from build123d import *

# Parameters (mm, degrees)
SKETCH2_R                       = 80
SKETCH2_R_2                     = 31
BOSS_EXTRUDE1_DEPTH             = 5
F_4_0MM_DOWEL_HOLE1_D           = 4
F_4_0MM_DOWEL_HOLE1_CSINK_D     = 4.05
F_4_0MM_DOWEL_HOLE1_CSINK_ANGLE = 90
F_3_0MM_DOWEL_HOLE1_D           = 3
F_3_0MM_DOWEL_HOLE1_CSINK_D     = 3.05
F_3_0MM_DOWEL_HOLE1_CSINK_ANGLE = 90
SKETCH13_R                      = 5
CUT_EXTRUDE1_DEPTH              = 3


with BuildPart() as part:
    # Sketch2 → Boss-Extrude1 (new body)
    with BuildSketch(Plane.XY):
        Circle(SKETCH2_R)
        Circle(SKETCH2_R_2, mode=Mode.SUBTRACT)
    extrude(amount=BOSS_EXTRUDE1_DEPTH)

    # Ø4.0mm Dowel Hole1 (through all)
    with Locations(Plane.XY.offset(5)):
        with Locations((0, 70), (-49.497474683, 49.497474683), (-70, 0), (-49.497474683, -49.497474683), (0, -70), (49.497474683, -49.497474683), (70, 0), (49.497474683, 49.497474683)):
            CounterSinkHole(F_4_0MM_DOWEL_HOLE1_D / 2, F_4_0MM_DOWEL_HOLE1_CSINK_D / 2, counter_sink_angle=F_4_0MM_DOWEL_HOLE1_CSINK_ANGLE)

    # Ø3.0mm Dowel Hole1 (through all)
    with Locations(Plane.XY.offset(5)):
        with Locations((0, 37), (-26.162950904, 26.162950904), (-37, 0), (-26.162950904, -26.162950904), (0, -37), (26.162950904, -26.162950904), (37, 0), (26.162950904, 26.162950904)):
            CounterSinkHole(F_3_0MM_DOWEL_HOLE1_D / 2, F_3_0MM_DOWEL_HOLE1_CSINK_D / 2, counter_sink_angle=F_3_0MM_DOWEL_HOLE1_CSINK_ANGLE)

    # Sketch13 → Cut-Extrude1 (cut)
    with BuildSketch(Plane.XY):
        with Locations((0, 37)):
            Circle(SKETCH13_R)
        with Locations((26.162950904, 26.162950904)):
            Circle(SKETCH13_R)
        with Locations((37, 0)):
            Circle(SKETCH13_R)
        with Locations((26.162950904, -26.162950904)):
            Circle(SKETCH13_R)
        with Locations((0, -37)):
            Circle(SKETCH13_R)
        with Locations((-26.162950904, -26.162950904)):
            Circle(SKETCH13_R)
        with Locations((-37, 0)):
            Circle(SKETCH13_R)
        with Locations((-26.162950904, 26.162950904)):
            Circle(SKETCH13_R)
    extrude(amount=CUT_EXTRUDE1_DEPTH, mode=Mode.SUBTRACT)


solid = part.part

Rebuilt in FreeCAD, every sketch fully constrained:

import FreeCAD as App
import Part
import Sketcher

V = App.Vector
Q = App.Units.Quantity

doc = App.newDocument("Part")
body = doc.addObject("PartDesign::Body", "Body")

# Sketch on XY plane
sketch1 = body.newObject("Sketcher::SketchObject", "Sketch")
sketch1.AttachmentSupport = (doc.getObject("XY_Plane"), [""])
sketch1.MapMode = "FlatFace"
sketch1.addGeometry(Part.Circle(V(0, 0, 0), V(0, 0, 1), 80), False)
sketch1.addGeometry(Part.Circle(V(0, 0, 0), V(0, 0, 1), 31), False)
sketch1.addConstraint(Sketcher.Constraint("Coincident", 0, 3, -1, 1))
sketch1.addConstraint(Sketcher.Constraint("Coincident", 1, 3, -1, 1))
sketch1.addConstraint(Sketcher.Constraint("Diameter", 0, Q("160 mm")))
sketch1.addConstraint(Sketcher.Constraint("Diameter", 1, Q("62 mm")))
pad1 = body.newObject("PartDesign::Pad", "Pad")
pad1.Profile = sketch1
pad1.Length = 5

# Sketch on XY plane
sketch2 = body.newObject("Sketcher::SketchObject", "Sketch001")
sketch2.AttachmentSupport = (doc.getObject("XY_Plane"), [""])
sketch2.MapMode = "FlatFace"
sketch2.AttachmentOffset = App.Placement(V(0, 0, 5), App.Rotation())
sketch2.addGeometry(Part.Circle(V(0, 70, 0), V(0, 0, 1), 2), False)
sketch2.addGeometry(Part.Circle(V(-49.5, 49.5, 0), V(0, 0, 1), 2), False)
sketch2.addGeometry(Part.Circle(V(-70, 0, 0), V(0, 0, 1), 2), False)
sketch2.addGeometry(Part.Circle(V(-49.5, -49.5, 0), V(0, 0, 1), 2), False)
sketch2.addGeometry(Part.Circle(V(0, -70, 0), V(0, 0, 1), 2), False)
sketch2.addGeometry(Part.Circle(V(49.5, -49.5, 0), V(0, 0, 1), 2), False)
sketch2.addGeometry(Part.Circle(V(70, 0, 0), V(0, 0, 1), 2), False)
sketch2.addGeometry(Part.Circle(V(49.5, 49.5, 0), V(0, 0, 1), 2), False)
sketch2.addConstraint(Sketcher.Constraint("Equal", 0, 1))
sketch2.addConstraint(Sketcher.Constraint("Equal", 1, 2))
sketch2.addConstraint(Sketcher.Constraint("Equal", 2, 3))
sketch2.addConstraint(Sketcher.Constraint("Equal", 3, 4))
sketch2.addConstraint(Sketcher.Constraint("Equal", 4, 5))
sketch2.addConstraint(Sketcher.Constraint("Equal", 5, 6))
sketch2.addConstraint(Sketcher.Constraint("Equal", 6, 7))
sketch2.addConstraint(Sketcher.Constraint("Symmetric", 0, 3, 4, 3, -1, 1))
sketch2.addConstraint(Sketcher.Constraint("Symmetric", 1, 3, 5, 3, -1, 1))
sketch2.addConstraint(Sketcher.Constraint("Symmetric", 2, 3, 6, 3, -1, 1))
sketch2.addConstraint(Sketcher.Constraint("Symmetric", 3, 3, 7, 3, -1, 1))
sketch2.addConstraint(Sketcher.Constraint("Symmetric", 3, 3, 5, 3, -2))
sketch2.addConstraint(Sketcher.Constraint("PointOnObject", 0, 3, -2))
sketch2.addConstraint(Sketcher.Constraint("PointOnObject", 2, 3, -1))
sketch2.addConstraint(Sketcher.Constraint("Diameter", 0, Q("4 mm")))
sketch2.addConstraint(Sketcher.Constraint("DistanceY", -1, 1, 0, 3, Q("70 mm")))
sketch2.addConstraint(Sketcher.Constraint("DistanceX", 2, 3, -1, 1, Q("70 mm")))
sketch2.addConstraint(Sketcher.Constraint("DistanceY", 3, 3, 1, 3, Q("98.994949 mm")))
sketch2.addConstraint(Sketcher.Constraint("DistanceX", 3, 3, 5, 3, Q("98.994949 mm")))
doc.recompute()
hole = body.newObject("PartDesign::Hole", "Hole")
hole.Profile = sketch2
hole.ThreadType = "None"
hole.Diameter = 4
hole.DepthType = "ThroughAll"
hole.HoleCutType = "Countersink"
hole.HoleCutDiameter = 4.05
hole.HoleCutCountersinkAngle = 90

# Sketch on XY plane
sketch3 = body.newObject("Sketcher::SketchObject", "Sketch002")
sketch3.AttachmentSupport = (doc.getObject("XY_Plane"), [""])
sketch3.MapMode = "FlatFace"
sketch3.AttachmentOffset = App.Placement(V(0, 0, 5), App.Rotation())
sketch3.addGeometry(Part.Circle(V(0, 37, 0), V(0, 0, 1), 1.5), False)
sketch3.addGeometry(Part.Circle(V(-26.2, 26.2, 0), V(0, 0, 1), 1.5), False)
sketch3.addGeometry(Part.Circle(V(-37, 0, 0), V(0, 0, 1), 1.5), False)
sketch3.addGeometry(Part.Circle(V(-26.2, -26.2, 0), V(0, 0, 1), 1.5), False)
sketch3.addGeometry(Part.Circle(V(0, -37, 0), V(0, 0, 1), 1.5), False)
sketch3.addGeometry(Part.Circle(V(26.2, -26.2, 0), V(0, 0, 1), 1.5), False)
sketch3.addGeometry(Part.Circle(V(37, 0, 0), V(0, 0, 1), 1.5), False)
sketch3.addGeometry(Part.Circle(V(26.2, 26.2, 0), V(0, 0, 1), 1.5), False)
sketch3.addConstraint(Sketcher.Constraint("Equal", 0, 1))
sketch3.addConstraint(Sketcher.Constraint("Equal", 1, 2))
sketch3.addConstraint(Sketcher.Constraint("Equal", 2, 3))
sketch3.addConstraint(Sketcher.Constraint("Equal", 3, 4))
sketch3.addConstraint(Sketcher.Constraint("Equal", 4, 5))
sketch3.addConstraint(Sketcher.Constraint("Equal", 5, 6))
sketch3.addConstraint(Sketcher.Constraint("Equal", 6, 7))
sketch3.addConstraint(Sketcher.Constraint("Symmetric", 0, 3, 4, 3, -1, 1))
sketch3.addConstraint(Sketcher.Constraint("Symmetric", 1, 3, 5, 3, -1, 1))
sketch3.addConstraint(Sketcher.Constraint("Symmetric", 2, 3, 6, 3, -1, 1))
sketch3.addConstraint(Sketcher.Constraint("Symmetric", 3, 3, 7, 3, -1, 1))
sketch3.addConstraint(Sketcher.Constraint("Symmetric", 3, 3, 5, 3, -2))
sketch3.addConstraint(Sketcher.Constraint("PointOnObject", 0, 3, -2))
sketch3.addConstraint(Sketcher.Constraint("PointOnObject", 2, 3, -1))
sketch3.addConstraint(Sketcher.Constraint("Diameter", 0, Q("3 mm")))
sketch3.addConstraint(Sketcher.Constraint("DistanceY", -1, 1, 0, 3, Q("37 mm")))
sketch3.addConstraint(Sketcher.Constraint("DistanceX", 2, 3, -1, 1, Q("37 mm")))
sketch3.addConstraint(Sketcher.Constraint("DistanceY", 3, 3, 1, 3, Q("52.325902 mm")))
sketch3.addConstraint(Sketcher.Constraint("DistanceX", 3, 3, 5, 3, Q("52.325902 mm")))
doc.recompute()
hole2 = body.newObject("PartDesign::Hole", "Hole001")
hole2.Profile = sketch3
hole2.ThreadType = "None"
hole2.Diameter = 3
hole2.DepthType = "ThroughAll"
hole2.HoleCutType = "Countersink"
hole2.HoleCutDiameter = 3.05
hole2.HoleCutCountersinkAngle = 90

# Sketch on XY plane
sketch4 = body.newObject("Sketcher::SketchObject", "Sketch003")
sketch4.AttachmentSupport = (doc.getObject("XY_Plane"), [""])
sketch4.MapMode = "FlatFace"
sketch4.addGeometry(Part.Circle(V(0, 37, 0), V(0, 0, 1), 5), False)
sketch4.addGeometry(Part.Circle(V(26, 26, 0), V(0, 0, 1), 5), False)
sketch4.addGeometry(Part.Circle(V(37, 0, 0), V(0, 0, 1), 5), False)
sketch4.addGeometry(Part.Circle(V(26, -26, 0), V(0, 0, 1), 5), False)
sketch4.addGeometry(Part.Circle(V(0, -37, 0), V(0, 0, 1), 5), False)
sketch4.addGeometry(Part.Circle(V(-26, -26, 0), V(0, 0, 1), 5), False)
sketch4.addGeometry(Part.Circle(V(-37, 0, 0), V(0, 0, 1), 5), False)
sketch4.addGeometry(Part.Circle(V(-26, 26, 0), V(0, 0, 1), 5), False)
sketch4.addConstraint(Sketcher.Constraint("Equal", 0, 1))
sketch4.addConstraint(Sketcher.Constraint("Equal", 1, 2))
sketch4.addConstraint(Sketcher.Constraint("Equal", 2, 3))
sketch4.addConstraint(Sketcher.Constraint("Equal", 3, 4))
sketch4.addConstraint(Sketcher.Constraint("Equal", 4, 5))
sketch4.addConstraint(Sketcher.Constraint("Equal", 5, 6))
sketch4.addConstraint(Sketcher.Constraint("Equal", 6, 7))
sketch4.addConstraint(Sketcher.Constraint("Symmetric", 0, 3, 4, 3, -1, 1))
sketch4.addConstraint(Sketcher.Constraint("Symmetric", 1, 3, 5, 3, -1, 1))
sketch4.addConstraint(Sketcher.Constraint("Symmetric", 2, 3, 6, 3, -1, 1))
sketch4.addConstraint(Sketcher.Constraint("Symmetric", 3, 3, 7, 3, -1, 1))
sketch4.addConstraint(Sketcher.Constraint("Symmetric", 3, 3, 5, 3, -2))
sketch4.addConstraint(Sketcher.Constraint("PointOnObject", 0, 3, -2))
sketch4.addConstraint(Sketcher.Constraint("PointOnObject", 2, 3, -1))
sketch4.addConstraint(Sketcher.Constraint("Diameter", 0, Q("10 mm")))
sketch4.addConstraint(Sketcher.Constraint("DistanceY", -1, 1, 0, 3, Q("37 mm")))
sketch4.addConstraint(Sketcher.Constraint("DistanceX", -1, 1, 2, 3, Q("37 mm")))
sketch4.addConstraint(Sketcher.Constraint("DistanceY", 3, 3, 1, 3, Q("52.325902 mm")))
sketch4.addConstraint(Sketcher.Constraint("DistanceX", 5, 3, 3, 3, Q("52.325902 mm")))
pocket1 = body.newObject("PartDesign::Pocket", "Pocket")
pocket1.Profile = sketch4
pocket1.Length = 3
pocket1.Reversed = True

doc.recompute()
